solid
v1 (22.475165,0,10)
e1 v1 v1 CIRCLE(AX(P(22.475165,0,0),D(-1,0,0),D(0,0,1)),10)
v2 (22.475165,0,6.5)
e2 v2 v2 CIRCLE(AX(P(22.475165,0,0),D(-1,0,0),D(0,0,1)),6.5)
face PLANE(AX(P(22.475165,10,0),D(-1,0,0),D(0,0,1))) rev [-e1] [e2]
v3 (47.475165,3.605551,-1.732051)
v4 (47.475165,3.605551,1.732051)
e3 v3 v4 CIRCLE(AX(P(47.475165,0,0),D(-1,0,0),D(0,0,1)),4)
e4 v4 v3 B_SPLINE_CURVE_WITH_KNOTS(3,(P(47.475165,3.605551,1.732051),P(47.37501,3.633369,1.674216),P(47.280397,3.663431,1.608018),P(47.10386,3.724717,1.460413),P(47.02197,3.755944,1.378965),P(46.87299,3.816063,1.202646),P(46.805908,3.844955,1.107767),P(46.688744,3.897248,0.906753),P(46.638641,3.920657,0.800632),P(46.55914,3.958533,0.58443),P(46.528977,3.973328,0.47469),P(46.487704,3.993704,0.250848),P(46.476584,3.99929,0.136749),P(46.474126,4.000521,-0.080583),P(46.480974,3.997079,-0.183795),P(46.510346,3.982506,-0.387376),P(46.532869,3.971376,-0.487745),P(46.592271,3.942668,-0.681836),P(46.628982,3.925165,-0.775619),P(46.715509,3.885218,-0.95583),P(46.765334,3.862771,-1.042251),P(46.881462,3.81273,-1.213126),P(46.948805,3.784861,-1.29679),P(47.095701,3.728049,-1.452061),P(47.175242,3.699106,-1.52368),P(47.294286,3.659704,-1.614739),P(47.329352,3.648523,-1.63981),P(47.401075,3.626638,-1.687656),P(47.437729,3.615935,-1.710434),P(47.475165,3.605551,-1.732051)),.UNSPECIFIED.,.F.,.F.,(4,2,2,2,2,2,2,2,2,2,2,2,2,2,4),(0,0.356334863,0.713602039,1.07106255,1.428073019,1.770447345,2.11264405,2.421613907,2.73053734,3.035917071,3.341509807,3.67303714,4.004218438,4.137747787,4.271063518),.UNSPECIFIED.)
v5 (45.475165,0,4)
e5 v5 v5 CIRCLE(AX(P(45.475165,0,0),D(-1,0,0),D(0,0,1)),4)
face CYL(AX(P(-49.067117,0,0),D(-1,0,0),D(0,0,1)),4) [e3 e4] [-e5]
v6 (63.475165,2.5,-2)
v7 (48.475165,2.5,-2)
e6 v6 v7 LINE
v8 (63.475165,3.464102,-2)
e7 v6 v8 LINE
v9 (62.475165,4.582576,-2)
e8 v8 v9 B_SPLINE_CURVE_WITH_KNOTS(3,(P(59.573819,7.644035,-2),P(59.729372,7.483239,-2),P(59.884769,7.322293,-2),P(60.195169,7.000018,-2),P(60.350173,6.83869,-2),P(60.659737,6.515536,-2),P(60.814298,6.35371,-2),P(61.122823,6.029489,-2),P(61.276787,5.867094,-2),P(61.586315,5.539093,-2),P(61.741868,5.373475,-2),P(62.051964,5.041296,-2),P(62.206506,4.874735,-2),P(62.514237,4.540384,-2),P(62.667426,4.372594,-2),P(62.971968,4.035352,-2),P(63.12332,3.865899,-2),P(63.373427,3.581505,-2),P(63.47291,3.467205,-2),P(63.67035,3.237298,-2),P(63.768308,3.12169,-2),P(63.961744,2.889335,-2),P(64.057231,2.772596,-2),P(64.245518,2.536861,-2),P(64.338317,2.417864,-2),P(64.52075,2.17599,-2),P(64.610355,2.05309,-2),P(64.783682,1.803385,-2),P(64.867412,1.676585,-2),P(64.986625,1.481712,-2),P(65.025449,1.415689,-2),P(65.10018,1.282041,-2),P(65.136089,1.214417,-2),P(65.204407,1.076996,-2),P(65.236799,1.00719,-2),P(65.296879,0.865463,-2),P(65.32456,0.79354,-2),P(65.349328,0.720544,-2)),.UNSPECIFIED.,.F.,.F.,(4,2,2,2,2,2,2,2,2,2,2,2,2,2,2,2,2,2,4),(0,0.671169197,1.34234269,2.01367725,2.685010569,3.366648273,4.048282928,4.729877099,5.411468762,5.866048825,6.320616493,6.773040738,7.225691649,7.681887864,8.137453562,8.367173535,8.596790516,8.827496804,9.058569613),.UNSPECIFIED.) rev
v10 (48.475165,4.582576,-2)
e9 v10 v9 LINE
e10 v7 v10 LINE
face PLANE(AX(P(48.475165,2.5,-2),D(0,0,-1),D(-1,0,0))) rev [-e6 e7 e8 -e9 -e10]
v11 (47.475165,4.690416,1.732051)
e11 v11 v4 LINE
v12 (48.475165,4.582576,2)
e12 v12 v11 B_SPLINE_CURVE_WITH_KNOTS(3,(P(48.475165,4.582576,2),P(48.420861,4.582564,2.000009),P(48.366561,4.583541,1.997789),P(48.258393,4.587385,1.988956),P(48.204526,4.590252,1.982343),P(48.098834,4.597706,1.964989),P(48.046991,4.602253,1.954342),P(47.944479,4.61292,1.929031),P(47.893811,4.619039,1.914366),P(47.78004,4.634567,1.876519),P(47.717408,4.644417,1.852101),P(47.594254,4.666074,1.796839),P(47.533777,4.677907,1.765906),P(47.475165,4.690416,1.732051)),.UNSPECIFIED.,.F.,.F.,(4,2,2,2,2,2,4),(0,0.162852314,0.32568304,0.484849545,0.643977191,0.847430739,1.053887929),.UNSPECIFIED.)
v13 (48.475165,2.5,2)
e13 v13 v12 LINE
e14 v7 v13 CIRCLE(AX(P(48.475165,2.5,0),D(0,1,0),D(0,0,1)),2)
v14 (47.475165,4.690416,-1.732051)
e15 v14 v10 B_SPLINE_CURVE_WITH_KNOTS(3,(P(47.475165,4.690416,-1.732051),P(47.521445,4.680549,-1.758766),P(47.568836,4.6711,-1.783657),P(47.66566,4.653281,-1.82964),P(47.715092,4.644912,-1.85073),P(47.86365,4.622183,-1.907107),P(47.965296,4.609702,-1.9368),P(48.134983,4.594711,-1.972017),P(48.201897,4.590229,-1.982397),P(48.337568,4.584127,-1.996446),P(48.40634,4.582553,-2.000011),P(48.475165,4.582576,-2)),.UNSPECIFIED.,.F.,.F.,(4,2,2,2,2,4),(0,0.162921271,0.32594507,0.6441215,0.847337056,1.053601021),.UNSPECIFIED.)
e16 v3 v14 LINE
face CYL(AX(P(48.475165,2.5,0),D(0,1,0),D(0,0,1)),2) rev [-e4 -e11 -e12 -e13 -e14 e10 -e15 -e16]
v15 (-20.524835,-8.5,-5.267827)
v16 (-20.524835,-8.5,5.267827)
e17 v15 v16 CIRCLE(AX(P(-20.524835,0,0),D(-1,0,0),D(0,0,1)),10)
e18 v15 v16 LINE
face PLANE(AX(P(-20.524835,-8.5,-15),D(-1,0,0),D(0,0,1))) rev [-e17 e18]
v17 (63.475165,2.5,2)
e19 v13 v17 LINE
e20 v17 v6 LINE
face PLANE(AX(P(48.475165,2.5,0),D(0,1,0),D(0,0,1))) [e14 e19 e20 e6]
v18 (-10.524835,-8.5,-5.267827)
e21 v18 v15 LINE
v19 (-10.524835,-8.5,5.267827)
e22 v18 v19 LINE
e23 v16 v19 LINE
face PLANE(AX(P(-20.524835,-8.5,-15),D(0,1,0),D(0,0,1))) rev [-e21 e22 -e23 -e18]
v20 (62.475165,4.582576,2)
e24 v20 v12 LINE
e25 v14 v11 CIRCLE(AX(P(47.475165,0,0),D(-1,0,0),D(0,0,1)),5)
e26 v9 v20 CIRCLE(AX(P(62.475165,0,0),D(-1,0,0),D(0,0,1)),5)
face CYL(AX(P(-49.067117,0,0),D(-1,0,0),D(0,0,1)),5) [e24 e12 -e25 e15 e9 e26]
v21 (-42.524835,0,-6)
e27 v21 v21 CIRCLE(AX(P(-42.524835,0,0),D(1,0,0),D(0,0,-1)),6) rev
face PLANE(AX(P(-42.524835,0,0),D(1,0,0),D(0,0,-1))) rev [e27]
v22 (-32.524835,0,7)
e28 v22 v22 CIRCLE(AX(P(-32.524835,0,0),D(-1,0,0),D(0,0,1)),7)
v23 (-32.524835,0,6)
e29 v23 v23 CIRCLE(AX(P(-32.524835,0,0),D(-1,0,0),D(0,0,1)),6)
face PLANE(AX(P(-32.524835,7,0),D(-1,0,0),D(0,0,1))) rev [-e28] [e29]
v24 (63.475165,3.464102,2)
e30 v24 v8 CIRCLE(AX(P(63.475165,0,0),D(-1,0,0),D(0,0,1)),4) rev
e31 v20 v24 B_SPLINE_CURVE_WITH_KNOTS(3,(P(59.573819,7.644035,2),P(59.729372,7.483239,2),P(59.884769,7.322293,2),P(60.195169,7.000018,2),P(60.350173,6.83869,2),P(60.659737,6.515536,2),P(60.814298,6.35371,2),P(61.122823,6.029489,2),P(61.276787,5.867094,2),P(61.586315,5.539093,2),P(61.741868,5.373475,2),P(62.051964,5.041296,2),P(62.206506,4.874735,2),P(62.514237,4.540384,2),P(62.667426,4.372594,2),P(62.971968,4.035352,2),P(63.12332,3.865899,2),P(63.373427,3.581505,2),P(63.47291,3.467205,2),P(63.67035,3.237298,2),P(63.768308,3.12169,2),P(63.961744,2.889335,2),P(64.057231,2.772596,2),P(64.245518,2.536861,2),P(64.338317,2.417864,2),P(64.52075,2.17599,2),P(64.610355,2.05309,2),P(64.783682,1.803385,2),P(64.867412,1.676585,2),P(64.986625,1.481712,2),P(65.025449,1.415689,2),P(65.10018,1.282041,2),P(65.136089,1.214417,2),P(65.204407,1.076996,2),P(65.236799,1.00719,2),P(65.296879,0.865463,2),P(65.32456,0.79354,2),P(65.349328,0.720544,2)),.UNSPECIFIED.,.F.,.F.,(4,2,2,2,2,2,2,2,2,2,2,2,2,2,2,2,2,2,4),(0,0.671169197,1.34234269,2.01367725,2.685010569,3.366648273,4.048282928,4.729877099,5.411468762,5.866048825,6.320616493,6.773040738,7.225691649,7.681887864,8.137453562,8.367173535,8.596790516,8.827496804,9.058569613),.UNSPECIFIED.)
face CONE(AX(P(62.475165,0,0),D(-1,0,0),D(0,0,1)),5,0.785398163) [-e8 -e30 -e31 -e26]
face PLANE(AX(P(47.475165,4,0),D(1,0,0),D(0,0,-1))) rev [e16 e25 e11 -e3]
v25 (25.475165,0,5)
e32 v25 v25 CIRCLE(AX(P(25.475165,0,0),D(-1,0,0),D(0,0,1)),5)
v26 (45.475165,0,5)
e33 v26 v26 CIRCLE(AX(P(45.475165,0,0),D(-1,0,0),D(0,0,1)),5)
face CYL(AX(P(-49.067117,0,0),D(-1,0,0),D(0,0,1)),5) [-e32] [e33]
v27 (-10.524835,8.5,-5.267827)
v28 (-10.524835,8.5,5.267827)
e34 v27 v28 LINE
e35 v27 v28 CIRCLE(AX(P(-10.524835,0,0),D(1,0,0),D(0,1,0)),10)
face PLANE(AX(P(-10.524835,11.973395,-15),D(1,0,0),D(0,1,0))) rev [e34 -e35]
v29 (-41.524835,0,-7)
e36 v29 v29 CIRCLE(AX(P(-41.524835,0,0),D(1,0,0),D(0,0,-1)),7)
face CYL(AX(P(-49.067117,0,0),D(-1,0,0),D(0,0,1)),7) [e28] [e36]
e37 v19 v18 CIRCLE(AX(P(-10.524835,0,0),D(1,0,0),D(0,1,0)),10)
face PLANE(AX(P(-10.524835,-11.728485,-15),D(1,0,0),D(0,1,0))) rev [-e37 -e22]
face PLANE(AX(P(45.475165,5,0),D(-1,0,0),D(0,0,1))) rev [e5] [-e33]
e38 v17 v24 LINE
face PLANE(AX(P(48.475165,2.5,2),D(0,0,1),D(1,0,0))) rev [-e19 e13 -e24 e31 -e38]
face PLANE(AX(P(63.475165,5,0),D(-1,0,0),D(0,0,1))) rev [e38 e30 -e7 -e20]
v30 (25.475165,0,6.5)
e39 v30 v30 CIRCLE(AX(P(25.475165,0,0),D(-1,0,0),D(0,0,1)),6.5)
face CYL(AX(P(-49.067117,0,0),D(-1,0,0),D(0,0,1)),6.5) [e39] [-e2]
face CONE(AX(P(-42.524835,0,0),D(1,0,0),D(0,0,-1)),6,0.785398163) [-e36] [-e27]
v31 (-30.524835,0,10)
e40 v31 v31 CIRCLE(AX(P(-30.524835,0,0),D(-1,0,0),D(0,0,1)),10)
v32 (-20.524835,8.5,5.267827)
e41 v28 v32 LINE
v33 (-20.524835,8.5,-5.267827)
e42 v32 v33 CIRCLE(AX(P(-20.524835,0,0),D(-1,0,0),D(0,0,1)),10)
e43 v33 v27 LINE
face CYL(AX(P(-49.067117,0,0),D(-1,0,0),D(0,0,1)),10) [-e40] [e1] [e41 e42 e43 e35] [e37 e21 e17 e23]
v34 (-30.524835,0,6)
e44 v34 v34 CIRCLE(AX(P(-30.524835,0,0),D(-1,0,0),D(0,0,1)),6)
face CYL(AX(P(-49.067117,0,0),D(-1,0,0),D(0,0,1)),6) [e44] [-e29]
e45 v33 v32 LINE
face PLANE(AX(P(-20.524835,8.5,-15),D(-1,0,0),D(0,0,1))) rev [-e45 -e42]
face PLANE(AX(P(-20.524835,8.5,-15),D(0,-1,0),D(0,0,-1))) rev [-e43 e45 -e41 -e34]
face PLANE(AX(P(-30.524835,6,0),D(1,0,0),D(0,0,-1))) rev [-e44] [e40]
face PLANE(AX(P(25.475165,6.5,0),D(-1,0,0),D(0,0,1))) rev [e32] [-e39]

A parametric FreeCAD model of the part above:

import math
import FreeCAD as App
import Part
import Sketcher
from FreeCAD import Vector
Q = App.Units.Quantity


def edges_at(feature, points):
    """Names of the edges that pass closest to the given points."""
    edges = feature.Shape.Edges
    near = lambda p: min(range(len(edges)), key=lambda i: edges[i].distToShape(Part.Vertex(*p))[0])
    return sorted({f"Edge{near(p) + 1}" for p in points})


def add_polygon(sketch, points):
    """Adds a closed chain of lines whose ends are joined by coincident constraints."""
    first, n = sketch.GeometryCount, len(points)
    for a, b in zip(points, points[1:] + points[:1]):
        sketch.addGeometry(Part.LineSegment(App.Vector(*a, 0), App.Vector(*b, 0)), False)
    for i in range(n):
        sketch.addConstraint(Sketcher.Constraint("Coincident", first + i, 2, first + (i + 1) % n, 1))

doc = App.newDocument("Part")
body = doc.addObject("PartDesign::Body", "Body")

sketch1 = body.newObject("Sketcher::SketchObject", "Sketch")
sketch1.AttachmentSupport = (doc.getObject("XY_Plane"), [""])
sketch1.MapMode = "FlatFace"
add_polygon(sketch1, [(-42.524835, 7), (-42.524835, 0), (63.475165, 0), (63.475165, 5), (47.475165, 5), (47.475165, 4), (45.475165, 4), (45.475165, 5), (25.475165, 5), (25.475165, 6.5), (22.475165, 6.5), (22.475165, 10), (-30.524835, 10), (-30.524835, 6), (-32.524835, 6), (-32.524835, 7)])
sketch1.addConstraint(Sketcher.Constraint("Vertical", 0))
sketch1.addConstraint(Sketcher.Constraint("Horizontal", 1))
sketch1.addConstraint(Sketcher.Constraint("Vertical", 2))
sketch1.addConstraint(Sketcher.Constraint("Horizontal", 3))
sketch1.addConstraint(Sketcher.Constraint("Vertical", 4))
sketch1.addConstraint(Sketcher.Constraint("Horizontal", 5))
sketch1.addConstraint(Sketcher.Constraint("Vertical", 6))
sketch1.addConstraint(Sketcher.Constraint("Horizontal", 7))
sketch1.addConstraint(Sketcher.Constraint("Vertical", 8))
sketch1.addConstraint(Sketcher.Constraint("Horizontal", 9))
sketch1.addConstraint(Sketcher.Constraint("Vertical", 10))
sketch1.addConstraint(Sketcher.Constraint("Horizontal", 11))
sketch1.addConstraint(Sketcher.Constraint("Vertical", 12))
sketch1.addConstraint(Sketcher.Constraint("Horizontal", 13))
sketch1.addConstraint(Sketcher.Constraint("Vertical", 14))
sketch1.addConstraint(Sketcher.Constraint("Horizontal", 15))
sketch1.addConstraint(Sketcher.Constraint("PointOnObject", 0, 2, -1))
sketch1.addConstraint(Sketcher.Constraint("Horizontal", 3, 2, 6, 2))
sketch1.addConstraint(Sketcher.Constraint("Equal", 5, 13))
sketch1.addConstraint(Sketcher.Constraint("Equal", 6, 14))
sketch1.addConstraint(Sketcher.Constraint("DistanceX", 1, 1, 1, 2, Q("106 mm")))
sketch1.addConstraint(Sketcher.Constraint("DistanceX", 3, 2, 3, 1, Q("16 mm")))
sketch1.addConstraint(Sketcher.Constraint("DistanceX", 5, 2, 5, 1, Q("2 mm")))
sketch1.addConstraint(Sketcher.Constraint("DistanceX", 7, 2, 7, 1, Q("20 mm")))
sketch1.addConstraint(Sketcher.Constraint("DistanceX", 9, 2, 9, 1, Q("3 mm")))
sketch1.addConstraint(Sketcher.Constraint("DistanceX", 11, 2, 11, 1, Q("53 mm")))
sketch1.addConstraint(Sketcher.Constraint("DistanceY", 0, 2, 0, 1, Q("7 mm")))
sketch1.addConstraint(Sketcher.Constraint("DistanceY", 2, 1, 2, 2, Q("5 mm")))
sketch1.addConstraint(Sketcher.Constraint("DistanceY", 4, 2, 4, 1, Q("1 mm")))
sketch1.addConstraint(Sketcher.Constraint("DistanceY", 12, 2, 12, 1, Q("4 mm")))
sketch1.addConstraint(Sketcher.Constraint("DistanceY", 8, 1, 8, 2, Q("1.5 mm")))
sketch1.addConstraint(Sketcher.Constraint("DistanceX", 0, 2, -1, 1, Q("42.524835 mm")))
revolution = body.newObject("PartDesign::Revolution", "Revolution")
revolution.Profile = sketch1
revolution.ReferenceAxis = (sketch1, ["H_Axis"])
revolution.Angle = 360
doc.recompute()

chamfer = body.newObject("PartDesign::Chamfer", "Chamfer")
chamfer.Base = (revolution, edges_at(revolution, [(63.475, 0, -5), (-42.525, 0, -7)]))
chamfer.Size = 1

sketch2 = body.newObject("Sketcher::SketchObject", "Sketch001")
sketch2.AttachmentSupport = (doc.getObject("XY_Plane"), [""])
sketch2.MapMode = "FlatFace"
add_polygon(sketch2, [(-20.524835, 11.973395), (-20.524835, 8.5), (-10.524835, 8.5), (-10.524835, 11.973395)])
add_polygon(sketch2, [(-20.524835, -8.5), (-20.524835, -11.728485), (-10.524835, -11.728485), (-10.524835, -8.5)])
sketch2.addConstraint(Sketcher.Constraint("Vertical", 0))
sketch2.addConstraint(Sketcher.Constraint("Horizontal", 1))
sketch2.addConstraint(Sketcher.Constraint("Vertical", 2))
sketch2.addConstraint(Sketcher.Constraint("Horizontal", 3))
sketch2.addConstraint(Sketcher.Constraint("Vertical", 4))
sketch2.addConstraint(Sketcher.Constraint("Horizontal", 5))
sketch2.addConstraint(Sketcher.Constraint("Vertical", 6))
sketch2.addConstraint(Sketcher.Constraint("Horizontal", 7))
sketch2.addConstraint(Sketcher.Constraint("Symmetric", 1, 2, 6, 2, -1))
sketch2.addConstraint(Sketcher.Constraint("Vertical", 3, 2, 4, 2))
sketch2.addConstraint(Sketcher.Constraint("DistanceX", 1, 1, 1, 2, Q("10 mm")))
sketch2.addConstraint(Sketcher.Constraint("DistanceY", 6, 2, 1, 2, Q("17 mm")))
sketch2.addConstraint(Sketcher.Constraint("DistanceY", 0, 2, 0, 1, Q("3.473395 mm")))
sketch2.addConstraint(Sketcher.Constraint("DistanceY", 4, 2, 4, 1, Q("3.228485 mm")))
sketch2.addConstraint(Sketcher.Constraint("DistanceX", 0, 2, -1, 1, Q("20.524835 mm")))
pocket1 = body.newObject("PartDesign::Pocket", "Pocket")
pocket1.Profile = sketch2
pocket1.Length = 30
pocket1.Midplane = True

sketch3 = body.newObject("Sketcher::SketchObject", "Sketch002")
sketch3.AttachmentSupport = (doc.getObject("XZ_Plane"), [""])
sketch3.MapMode = "FlatFace"
sketch3.AttachmentOffset = App.Placement(Vector(0, 0, -5), App.Rotation())
sketch3.addGeometry(Part.LineSegment(Vector(48.475165, 2, 0), Vector(63.475165, 2, 0)), False)
sketch3.addGeometry(Part.LineSegment(Vector(63.475165, 2, 0), Vector(63.475165, -2, 0)), False)
sketch3.addGeometry(Part.LineSegment(Vector(63.475165, -2, 0), Vector(48.475165, -2, 0)), False)
sketch3.addGeometry(Part.ArcOfCircle(Part.Circle(Vector(48.475165, 0, 0), Vector(0, 0, 1), 2), math.radians(90), math.radians(270)), False)
sketch3.addConstraint(Sketcher.Constraint("Coincident", 0, 2, 1, 1))
sketch3.addConstraint(Sketcher.Constraint("Coincident", 1, 2, 2, 1))
sketch3.addConstraint(Sketcher.Constraint("Tangent", 2, 2, 3, 2))
sketch3.addConstraint(Sketcher.Constraint("Tangent", 3, 1, 0, 1))
sketch3.addConstraint(Sketcher.Constraint("Horizontal", 0))
sketch3.addConstraint(Sketcher.Constraint("Vertical", 1))
sketch3.addConstraint(Sketcher.Constraint("Horizontal", 2))
sketch3.addConstraint(Sketcher.Constraint("PointOnObject", 3, 3, -1))
sketch3.addConstraint(Sketcher.Constraint("Radius", 3, Q("2 mm")))
sketch3.addConstraint(Sketcher.Constraint("DistanceX", 0, 1, 0, 2, Q("15 mm")))
sketch3.addConstraint(Sketcher.Constraint("DistanceX", -1, 1, 3, 3, Q("48.475165 mm")))
pocket2 = body.newObject("PartDesign::Pocket", "Pocket001")
pocket2.Profile = sketch3
pocket2.Length = 2.5
pocket2.Reversed = True

doc.recompute()
